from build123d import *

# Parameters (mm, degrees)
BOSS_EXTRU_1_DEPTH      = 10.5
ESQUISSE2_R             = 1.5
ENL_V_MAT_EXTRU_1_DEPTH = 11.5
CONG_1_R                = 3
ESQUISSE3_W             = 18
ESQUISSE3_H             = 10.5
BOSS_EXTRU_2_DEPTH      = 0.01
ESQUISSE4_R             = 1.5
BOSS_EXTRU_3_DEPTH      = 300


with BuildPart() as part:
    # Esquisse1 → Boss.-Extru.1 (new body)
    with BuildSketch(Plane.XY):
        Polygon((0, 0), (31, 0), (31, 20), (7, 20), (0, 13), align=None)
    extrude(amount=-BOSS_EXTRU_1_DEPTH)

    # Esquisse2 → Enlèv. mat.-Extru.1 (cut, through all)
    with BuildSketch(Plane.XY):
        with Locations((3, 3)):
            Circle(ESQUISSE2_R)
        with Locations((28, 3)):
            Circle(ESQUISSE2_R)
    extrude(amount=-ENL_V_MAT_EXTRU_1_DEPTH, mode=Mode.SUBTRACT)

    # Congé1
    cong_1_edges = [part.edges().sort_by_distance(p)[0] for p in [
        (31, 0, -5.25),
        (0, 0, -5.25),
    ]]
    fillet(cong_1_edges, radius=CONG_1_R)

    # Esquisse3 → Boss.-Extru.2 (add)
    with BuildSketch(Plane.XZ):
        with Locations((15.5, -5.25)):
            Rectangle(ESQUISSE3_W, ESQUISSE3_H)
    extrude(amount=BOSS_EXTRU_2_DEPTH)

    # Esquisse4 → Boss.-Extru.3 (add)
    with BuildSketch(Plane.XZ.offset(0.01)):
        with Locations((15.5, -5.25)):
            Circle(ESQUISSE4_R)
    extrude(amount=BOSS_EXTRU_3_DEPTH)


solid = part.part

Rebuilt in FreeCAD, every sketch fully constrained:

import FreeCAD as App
import Part
import Sketcher
from FreeCAD import Vector


def edges_at(feature, points):
    """Names of the edges that pass closest to the given points."""
    edges = feature.Shape.Edges
    near = lambda p: min(range(len(edges)), key=lambda i: edges[i].distToShape(Part.Vertex(*p))[0])
    return sorted({f"Edge{near(p) + 1}" for p in points})


def add_polygon(sketch, points):
    """Adds a closed chain of lines whose ends are joined by coincident constraints."""
    first, n = sketch.GeometryCount, len(points)
    for a, b in zip(points, points[1:] + points[:1]):
        sketch.addGeometry(Part.LineSegment(App.Vector(*a, 0), App.Vector(*b, 0)), False)
    for i in range(n):
        sketch.addConstraint(Sketcher.Constraint("Coincident", first + i, 2, first + (i + 1) % n, 1))

doc = App.newDocument("Part")
body = doc.addObject("PartDesign::Body", "Body")

# Sketch on XY plane
sketch1 = body.newObject("Sketcher::SketchObject", "Sketch")
sketch1.AttachmentSupport = (doc.getObject("XY_Plane"), [""])
sketch1.MapMode = "FlatFace"
add_polygon(sketch1, [(0, 0), (31, 0), (31, 20), (7, 20), (0, 13)])  # lines 0-4
sketch1.addConstraint(Sketcher.Constraint("Horizontal", 0))
sketch1.addConstraint(Sketcher.Constraint("Vertical", 1))
sketch1.addConstraint(Sketcher.Constraint("Horizontal", 2))
sketch1.addConstraint(Sketcher.Constraint("Vertical", 4))
sketch1.addConstraint(Sketcher.Constraint("Coincident", 4, 2, -1, 1))
sketch1.addConstraint(Sketcher.Constraint("DistanceX", 0, 1, 0, 2, 31.0))
sketch1.addConstraint(Sketcher.Constraint("DistanceX", 2, 2, 2, 1, 24.0))
sketch1.addConstraint(Sketcher.Constraint("DistanceY", 1, 1, 1, 2, 20.0))
sketch1.addConstraint(Sketcher.Constraint("DistanceY", 4, 2, 4, 1, 13.0))
pad1 = body.newObject("PartDesign::Pad", "Pad")
pad1.Profile = sketch1
pad1.Length = 10.5
pad1.Reversed = True

# Sketch on XY plane
sketch2 = body.newObject("Sketcher::SketchObject", "Sketch001")
sketch2.AttachmentSupport = (doc.getObject("XY_Plane"), [""])
sketch2.MapMode = "FlatFace"
sketch2.addGeometry(Part.Circle(Vector(3, 3, 0), Vector(0, 0, 1), 1.5), False)
sketch2.addGeometry(Part.Circle(Vector(28, 3, 0), Vector(0, 0, 1), 1.5), False)
sketch2.addConstraint(Sketcher.Constraint("Equal", 0, 1))
sketch2.addConstraint(Sketcher.Constraint("Horizontal", 0, 3, 1, 3))
sketch2.addConstraint(Sketcher.Constraint("Diameter", 0, 3.0))
sketch2.addConstraint(Sketcher.Constraint("DistanceX", -1, 1, 0, 3, 3.0))
sketch2.addConstraint(Sketcher.Constraint("DistanceY", -1, 1, 0, 3, 3.0))
sketch2.addConstraint(Sketcher.Constraint("DistanceX", -1, 1, 1, 3, 28.0))
pocket1 = body.newObject("PartDesign::Pocket", "Pocket")
pocket1.Profile = sketch2
pocket1.Type = "ThroughAll"
doc.recompute()

fillet = body.newObject("PartDesign::Fillet", "Fillet")
fillet.Base = (pocket1, edges_at(pocket1, [(31, 0, -5.25), (0, 0, -5.25)]))
fillet.Radius = 3

# Sketch on XZ plane
sketch3 = body.newObject("Sketcher::SketchObject", "Sketch002")
sketch3.AttachmentSupport = (doc.getObject("XZ_Plane"), [""])
sketch3.MapMode = "FlatFace"
add_polygon(sketch3, [(6, 0), (6, -10), (24, -10), (24, 0)])  # lines 0-3
sketch3.addConstraint(Sketcher.Constraint("Vertical", 0))
sketch3.addConstraint(Sketcher.Constraint("Horizontal", 1))
sketch3.addConstraint(Sketcher.Constraint("Vertical", 2))
sketch3.addConstraint(Sketcher.Constraint("Horizontal", 3))
sketch3.addConstraint(Sketcher.Constraint("PointOnObject", 2, 2, -1))
sketch3.addConstraint(Sketcher.Constraint("DistanceX", 1, 1, 1, 2, 18.0))
sketch3.addConstraint(Sketcher.Constraint("DistanceY", 0, 2, 0, 1, 10.5))
sketch3.addConstraint(Sketcher.Constraint("DistanceX", -1, 1, 0, 2, 6.5))
pad2 = body.newObject("PartDesign::Pad", "Pad001")
pad2.Profile = sketch3
pad2.Length = 0.01

# Sketch on XZ plane
sketch4 = body.newObject("Sketcher::SketchObject", "Sketch003")
sketch4.AttachmentSupport = (doc.getObject("XZ_Plane"), [""])
sketch4.MapMode = "FlatFace"
sketch4.AttachmentOffset = App.Placement(Vector(0, 0, 0.01), App.Rotation())
sketch4.addGeometry(Part.Circle(Vector(15.5, -5.2, 0), Vector(0, 0, 1), 1.5), False)
sketch4.addConstraint(Sketcher.Constraint("Diameter", 0, 3.0))
sketch4.addConstraint(Sketcher.Constraint("DistanceX", -1, 1, 0, 3, 15.5))
sketch4.addConstraint(Sketcher.Constraint("DistanceY", 0, 3, -1, 1, 5.25))
pad3 = body.newObject("PartDesign::Pad", "Pad002")
pad3.Profile = sketch4
pad3.Length = 300

doc.recompute()
